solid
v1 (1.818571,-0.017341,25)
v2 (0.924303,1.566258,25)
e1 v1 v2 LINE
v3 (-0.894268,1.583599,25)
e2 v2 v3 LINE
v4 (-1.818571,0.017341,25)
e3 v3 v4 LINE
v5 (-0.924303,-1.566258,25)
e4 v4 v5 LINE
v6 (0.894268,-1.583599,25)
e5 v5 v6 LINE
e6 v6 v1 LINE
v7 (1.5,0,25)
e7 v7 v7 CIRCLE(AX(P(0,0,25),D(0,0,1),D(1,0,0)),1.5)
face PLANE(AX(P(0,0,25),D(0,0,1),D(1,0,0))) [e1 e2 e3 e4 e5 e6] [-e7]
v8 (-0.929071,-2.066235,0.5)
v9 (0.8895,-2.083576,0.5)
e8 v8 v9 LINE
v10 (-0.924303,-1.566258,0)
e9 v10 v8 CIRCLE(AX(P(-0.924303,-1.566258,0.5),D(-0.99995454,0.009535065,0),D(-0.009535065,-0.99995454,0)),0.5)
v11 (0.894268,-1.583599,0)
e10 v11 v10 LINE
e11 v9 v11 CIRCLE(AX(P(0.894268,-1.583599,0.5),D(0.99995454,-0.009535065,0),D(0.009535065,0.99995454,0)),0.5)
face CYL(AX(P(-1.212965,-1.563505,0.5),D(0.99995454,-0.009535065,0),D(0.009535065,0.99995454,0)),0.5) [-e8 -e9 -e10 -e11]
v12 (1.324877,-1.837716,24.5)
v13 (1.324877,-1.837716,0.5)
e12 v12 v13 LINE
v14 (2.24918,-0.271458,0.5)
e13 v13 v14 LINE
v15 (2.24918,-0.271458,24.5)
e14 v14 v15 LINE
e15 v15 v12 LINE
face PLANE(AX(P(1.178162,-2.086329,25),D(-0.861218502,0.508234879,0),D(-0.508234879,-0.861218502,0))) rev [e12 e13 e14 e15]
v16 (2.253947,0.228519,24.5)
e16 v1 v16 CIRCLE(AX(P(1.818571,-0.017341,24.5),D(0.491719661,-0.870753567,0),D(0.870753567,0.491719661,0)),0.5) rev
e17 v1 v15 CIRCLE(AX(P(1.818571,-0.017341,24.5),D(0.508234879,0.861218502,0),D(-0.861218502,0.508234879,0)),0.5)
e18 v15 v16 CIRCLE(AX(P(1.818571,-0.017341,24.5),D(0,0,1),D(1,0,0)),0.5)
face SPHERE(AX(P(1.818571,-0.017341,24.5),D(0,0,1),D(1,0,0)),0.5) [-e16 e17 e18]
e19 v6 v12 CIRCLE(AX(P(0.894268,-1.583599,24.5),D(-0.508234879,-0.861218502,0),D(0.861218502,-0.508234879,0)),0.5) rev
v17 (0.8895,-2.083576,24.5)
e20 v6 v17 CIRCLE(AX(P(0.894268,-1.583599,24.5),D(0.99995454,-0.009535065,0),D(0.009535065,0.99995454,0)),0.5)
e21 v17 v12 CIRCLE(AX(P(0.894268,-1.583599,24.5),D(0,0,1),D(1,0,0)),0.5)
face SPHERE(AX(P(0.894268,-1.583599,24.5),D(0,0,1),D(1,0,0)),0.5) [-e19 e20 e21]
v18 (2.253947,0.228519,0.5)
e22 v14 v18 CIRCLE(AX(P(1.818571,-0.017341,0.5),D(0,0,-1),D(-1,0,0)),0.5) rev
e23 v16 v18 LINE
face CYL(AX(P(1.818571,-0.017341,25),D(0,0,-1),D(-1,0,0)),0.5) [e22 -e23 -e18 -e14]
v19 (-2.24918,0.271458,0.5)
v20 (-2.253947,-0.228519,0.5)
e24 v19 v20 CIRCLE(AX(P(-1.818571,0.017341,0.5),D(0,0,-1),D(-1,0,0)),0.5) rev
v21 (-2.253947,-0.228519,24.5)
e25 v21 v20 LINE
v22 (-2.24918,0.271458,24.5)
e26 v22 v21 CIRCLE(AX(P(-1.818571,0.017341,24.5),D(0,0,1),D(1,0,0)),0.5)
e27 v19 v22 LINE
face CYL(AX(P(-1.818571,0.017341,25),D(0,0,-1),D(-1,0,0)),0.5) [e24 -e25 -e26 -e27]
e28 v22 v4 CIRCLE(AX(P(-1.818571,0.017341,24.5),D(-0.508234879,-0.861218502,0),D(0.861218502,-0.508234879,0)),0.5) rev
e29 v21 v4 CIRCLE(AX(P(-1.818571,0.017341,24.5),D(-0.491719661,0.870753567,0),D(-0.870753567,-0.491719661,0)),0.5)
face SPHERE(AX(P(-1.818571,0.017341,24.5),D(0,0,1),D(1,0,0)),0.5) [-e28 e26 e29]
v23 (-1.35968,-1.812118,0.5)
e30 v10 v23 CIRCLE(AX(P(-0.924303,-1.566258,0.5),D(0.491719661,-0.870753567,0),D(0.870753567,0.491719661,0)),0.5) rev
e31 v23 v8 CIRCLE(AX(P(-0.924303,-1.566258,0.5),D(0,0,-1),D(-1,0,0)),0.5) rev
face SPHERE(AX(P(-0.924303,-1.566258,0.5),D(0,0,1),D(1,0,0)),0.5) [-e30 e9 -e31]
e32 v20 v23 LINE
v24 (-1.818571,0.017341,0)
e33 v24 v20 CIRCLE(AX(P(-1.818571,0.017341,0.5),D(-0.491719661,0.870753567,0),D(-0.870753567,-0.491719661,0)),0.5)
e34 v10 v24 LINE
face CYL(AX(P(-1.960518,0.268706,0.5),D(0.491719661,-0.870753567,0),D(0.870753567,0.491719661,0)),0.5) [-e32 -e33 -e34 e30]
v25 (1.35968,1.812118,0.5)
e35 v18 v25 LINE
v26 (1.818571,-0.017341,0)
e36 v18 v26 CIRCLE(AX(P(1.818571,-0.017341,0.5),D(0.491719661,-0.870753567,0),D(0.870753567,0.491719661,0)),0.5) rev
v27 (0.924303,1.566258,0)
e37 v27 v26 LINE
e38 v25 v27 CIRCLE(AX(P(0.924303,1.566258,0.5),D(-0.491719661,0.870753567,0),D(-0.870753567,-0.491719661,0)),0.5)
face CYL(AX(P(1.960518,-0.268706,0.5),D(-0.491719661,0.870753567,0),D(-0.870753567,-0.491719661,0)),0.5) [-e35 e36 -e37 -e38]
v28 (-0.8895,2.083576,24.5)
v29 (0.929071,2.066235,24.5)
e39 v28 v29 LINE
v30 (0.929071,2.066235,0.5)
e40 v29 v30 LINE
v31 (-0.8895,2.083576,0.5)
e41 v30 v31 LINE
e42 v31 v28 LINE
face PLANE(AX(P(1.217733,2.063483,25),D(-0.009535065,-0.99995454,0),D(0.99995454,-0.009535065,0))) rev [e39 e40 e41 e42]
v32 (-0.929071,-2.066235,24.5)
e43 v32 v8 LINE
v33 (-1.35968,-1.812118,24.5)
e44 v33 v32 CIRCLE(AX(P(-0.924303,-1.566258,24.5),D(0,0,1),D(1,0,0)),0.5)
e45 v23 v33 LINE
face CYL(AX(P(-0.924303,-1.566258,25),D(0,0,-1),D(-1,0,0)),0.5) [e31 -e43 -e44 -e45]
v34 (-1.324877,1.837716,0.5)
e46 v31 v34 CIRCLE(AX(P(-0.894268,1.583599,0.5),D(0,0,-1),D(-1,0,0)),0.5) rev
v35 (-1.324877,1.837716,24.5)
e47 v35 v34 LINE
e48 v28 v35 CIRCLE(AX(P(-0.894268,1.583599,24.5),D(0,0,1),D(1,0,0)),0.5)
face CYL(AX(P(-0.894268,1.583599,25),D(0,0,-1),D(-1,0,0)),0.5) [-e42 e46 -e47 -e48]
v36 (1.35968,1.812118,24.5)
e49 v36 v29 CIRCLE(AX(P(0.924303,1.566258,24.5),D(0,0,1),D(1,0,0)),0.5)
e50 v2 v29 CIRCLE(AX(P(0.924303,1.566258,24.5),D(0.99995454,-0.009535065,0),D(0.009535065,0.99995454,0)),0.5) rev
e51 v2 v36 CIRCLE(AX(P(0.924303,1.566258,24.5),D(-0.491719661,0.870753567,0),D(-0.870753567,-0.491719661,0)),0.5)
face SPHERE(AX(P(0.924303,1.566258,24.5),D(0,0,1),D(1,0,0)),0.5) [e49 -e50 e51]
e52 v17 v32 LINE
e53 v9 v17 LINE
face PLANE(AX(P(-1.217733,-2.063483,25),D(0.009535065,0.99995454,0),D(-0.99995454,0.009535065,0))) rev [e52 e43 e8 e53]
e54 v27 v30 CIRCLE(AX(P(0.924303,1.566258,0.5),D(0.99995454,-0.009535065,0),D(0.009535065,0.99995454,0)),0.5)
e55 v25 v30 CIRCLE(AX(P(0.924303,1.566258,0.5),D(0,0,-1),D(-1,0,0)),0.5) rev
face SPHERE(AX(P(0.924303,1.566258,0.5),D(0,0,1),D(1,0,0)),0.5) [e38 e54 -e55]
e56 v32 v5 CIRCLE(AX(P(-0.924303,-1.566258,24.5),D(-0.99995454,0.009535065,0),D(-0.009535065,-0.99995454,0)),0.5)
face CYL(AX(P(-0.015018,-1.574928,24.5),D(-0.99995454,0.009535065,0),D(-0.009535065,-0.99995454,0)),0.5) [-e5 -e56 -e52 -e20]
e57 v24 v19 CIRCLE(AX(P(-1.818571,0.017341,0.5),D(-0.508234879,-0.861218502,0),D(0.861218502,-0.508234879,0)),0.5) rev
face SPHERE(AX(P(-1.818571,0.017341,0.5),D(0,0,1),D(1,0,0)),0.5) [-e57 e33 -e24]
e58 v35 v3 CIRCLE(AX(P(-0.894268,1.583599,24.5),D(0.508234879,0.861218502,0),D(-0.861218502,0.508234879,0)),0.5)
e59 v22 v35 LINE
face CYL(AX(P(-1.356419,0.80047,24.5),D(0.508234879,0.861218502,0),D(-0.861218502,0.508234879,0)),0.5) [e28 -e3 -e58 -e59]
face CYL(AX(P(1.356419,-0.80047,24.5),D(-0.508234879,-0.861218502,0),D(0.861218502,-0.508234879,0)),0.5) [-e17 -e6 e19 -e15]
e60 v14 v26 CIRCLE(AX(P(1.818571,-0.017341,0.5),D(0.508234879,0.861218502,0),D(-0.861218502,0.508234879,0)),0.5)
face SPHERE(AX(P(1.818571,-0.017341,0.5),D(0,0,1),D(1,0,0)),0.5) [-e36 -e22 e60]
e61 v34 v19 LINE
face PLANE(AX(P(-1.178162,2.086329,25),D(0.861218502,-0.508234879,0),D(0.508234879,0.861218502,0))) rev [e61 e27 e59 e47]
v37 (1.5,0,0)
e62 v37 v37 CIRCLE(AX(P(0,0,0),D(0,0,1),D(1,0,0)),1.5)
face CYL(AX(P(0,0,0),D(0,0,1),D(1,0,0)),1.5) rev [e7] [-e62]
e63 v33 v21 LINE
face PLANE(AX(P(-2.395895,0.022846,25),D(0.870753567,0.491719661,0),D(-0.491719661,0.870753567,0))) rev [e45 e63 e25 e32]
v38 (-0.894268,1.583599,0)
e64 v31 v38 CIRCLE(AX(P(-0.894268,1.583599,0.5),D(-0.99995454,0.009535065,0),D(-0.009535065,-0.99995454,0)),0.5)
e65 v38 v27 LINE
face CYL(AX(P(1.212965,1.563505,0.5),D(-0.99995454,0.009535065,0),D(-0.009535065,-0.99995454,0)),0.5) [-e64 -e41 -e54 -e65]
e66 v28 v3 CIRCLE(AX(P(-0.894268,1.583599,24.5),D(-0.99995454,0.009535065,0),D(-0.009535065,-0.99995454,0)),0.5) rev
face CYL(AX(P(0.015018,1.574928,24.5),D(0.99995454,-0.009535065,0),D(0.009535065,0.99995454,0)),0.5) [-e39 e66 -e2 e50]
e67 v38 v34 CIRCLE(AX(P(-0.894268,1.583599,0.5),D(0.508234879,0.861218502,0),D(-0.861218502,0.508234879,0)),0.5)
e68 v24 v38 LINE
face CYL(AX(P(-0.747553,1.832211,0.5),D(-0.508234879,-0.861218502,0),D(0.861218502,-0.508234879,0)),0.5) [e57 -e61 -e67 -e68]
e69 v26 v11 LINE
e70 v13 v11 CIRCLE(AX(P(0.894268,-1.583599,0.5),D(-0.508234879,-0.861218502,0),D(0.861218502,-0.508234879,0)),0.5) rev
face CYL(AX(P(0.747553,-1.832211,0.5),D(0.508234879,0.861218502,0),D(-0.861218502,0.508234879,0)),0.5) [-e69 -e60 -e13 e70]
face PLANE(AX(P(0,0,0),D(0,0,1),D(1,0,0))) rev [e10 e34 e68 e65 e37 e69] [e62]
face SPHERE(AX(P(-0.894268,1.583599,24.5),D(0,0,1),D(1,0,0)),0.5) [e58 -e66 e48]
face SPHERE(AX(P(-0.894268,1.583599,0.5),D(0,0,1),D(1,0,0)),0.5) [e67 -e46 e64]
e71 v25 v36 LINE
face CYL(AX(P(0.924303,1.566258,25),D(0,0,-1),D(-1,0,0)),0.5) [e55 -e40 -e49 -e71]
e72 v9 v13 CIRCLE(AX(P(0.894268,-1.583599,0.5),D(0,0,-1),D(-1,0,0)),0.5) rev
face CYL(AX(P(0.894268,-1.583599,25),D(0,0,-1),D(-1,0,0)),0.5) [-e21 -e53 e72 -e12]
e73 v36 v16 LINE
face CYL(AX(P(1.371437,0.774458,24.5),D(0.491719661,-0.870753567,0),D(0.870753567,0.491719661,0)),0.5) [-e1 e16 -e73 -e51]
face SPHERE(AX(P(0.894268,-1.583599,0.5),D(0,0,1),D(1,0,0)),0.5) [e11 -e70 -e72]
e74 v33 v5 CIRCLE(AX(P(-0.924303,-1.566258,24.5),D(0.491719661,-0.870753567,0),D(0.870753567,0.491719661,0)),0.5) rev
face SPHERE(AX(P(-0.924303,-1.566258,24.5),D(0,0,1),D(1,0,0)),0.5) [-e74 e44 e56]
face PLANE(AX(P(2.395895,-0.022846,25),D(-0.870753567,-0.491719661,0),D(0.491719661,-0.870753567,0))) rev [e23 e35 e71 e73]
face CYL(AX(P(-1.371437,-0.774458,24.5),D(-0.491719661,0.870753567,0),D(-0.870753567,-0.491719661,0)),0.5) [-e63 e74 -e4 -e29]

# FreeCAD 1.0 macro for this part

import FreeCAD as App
import Part
import Sketcher
from FreeCAD import Vector


def edges_at(feature, points):
    """Names of the edges that pass closest to the given points."""
    edges = feature.Shape.Edges
    near = lambda p: min(range(len(edges)), key=lambda i: edges[i].distToShape(Part.Vertex(*p))[0])
    return sorted({f"Edge{near(p) + 1}" for p in points})


def add_polygon(sketch, points):
    """Adds a closed chain of lines whose ends are joined by coincident constraints."""
    first, n = sketch.GeometryCount, len(points)
    for a, b in zip(points, points[1:] + points[:1]):
        sketch.addGeometry(Part.LineSegment(App.Vector(*a, 0), App.Vector(*b, 0)), False)
    for i in range(n):
        sketch.addConstraint(Sketcher.Constraint("Coincident", first + i, 2, first + (i + 1) % n, 1))

doc = App.newDocument("Part")
body = doc.addObject("PartDesign::Body", "Body")

sketch1 = body.newObject("Sketcher::SketchObject", "Sketch")
sketch1.AttachmentSupport = (doc.getObject("XY_Plane"), [""])
sketch1.MapMode = "FlatFace"
add_polygon(sketch1, [(1.178162, -2.086329), (2.395895, -0.022846), (1.217733, 2.063483), (-1.178162, 2.086329), (-2.395895, 0.022846), (-1.217733, -2.063483)])
sketch1.addConstraint([
    Sketcher.Constraint("Symmetric", 0, 2, 3, 2, -1, 1),
    Sketcher.Constraint("Symmetric", 1, 2, 4, 2, -1, 1),
    Sketcher.Constraint("Symmetric", 2, 2, 5, 2, -1, 1),
    Sketcher.Constraint("Equal", 0, 1),
    Sketcher.Constraint("Equal", 1, 2),
    Sketcher.Constraint("DistanceY", -1, 1, 2, 2, 2.086329),
    Sketcher.Constraint("DistanceY", 0, 2, 1, 2, 2.086329),
    Sketcher.Constraint("DistanceX", 3, 2, 0, 2, 4.791789),
    Sketcher.Constraint("DistanceX", 4, 2, 2, 2, 0.039571),
])
pad1 = body.newObject("PartDesign::Pad", "Pad")
pad1.Profile = sketch1
pad1.Length = 25

sketch2 = body.newObject("Sketcher::SketchObject", "Sketch001")
sketch2.AttachmentSupport = (doc.getObject("XY_Plane"), [""])
sketch2.MapMode = "FlatFace"
sketch2.AttachmentOffset = App.Placement(Vector(0, 0, 25), App.Rotation())
sketch2.addGeometry(Part.Circle(Vector(0, 0, 0), Vector(0, 0, 1), 1.5), False)
sketch2.addConstraint([
    Sketcher.Constraint("Coincident", 0, 3, -1, 1),
    Sketcher.Constraint("Diameter", 0, 3.0),
])
pocket1 = body.newObject("PartDesign::Pocket", "Pocket")
pocket1.Profile = sketch2
pocket1.Length = 25
doc.recompute()

fillet = body.newObject("PartDesign::Fillet", "Fillet")
fillet.Base = (pocket1, edges_at(pocket1, [
    (1.807, 1.02, 25),
    (-1.218, -2.063, 12.5),
    (-2.396, 0.023, 12.5),
    (-1.178, 2.086, 12.5),
    (1.218, 2.063, 12.5),
    (2.396, -0.023, 12.5),
    (1.178, -2.086, 12.5),
    (0.02, 2.075, 25),
    (-1.787, 1.055, 25),
    (-1.807, -1.02, 25),
    (-0.02, -2.075, 25),
    (-1.807, -1.02, 0),
    (-1.787, 1.055, 0),
    (0.02, 2.075, 0),
    (1.787, -1.055, 25),
    (1.807, 1.02, 0),
    (1.787, -1.055, 0),
    (-0.02, -2.075, 0),
]))
fillet.Radius = 0.5

doc.recompute()
